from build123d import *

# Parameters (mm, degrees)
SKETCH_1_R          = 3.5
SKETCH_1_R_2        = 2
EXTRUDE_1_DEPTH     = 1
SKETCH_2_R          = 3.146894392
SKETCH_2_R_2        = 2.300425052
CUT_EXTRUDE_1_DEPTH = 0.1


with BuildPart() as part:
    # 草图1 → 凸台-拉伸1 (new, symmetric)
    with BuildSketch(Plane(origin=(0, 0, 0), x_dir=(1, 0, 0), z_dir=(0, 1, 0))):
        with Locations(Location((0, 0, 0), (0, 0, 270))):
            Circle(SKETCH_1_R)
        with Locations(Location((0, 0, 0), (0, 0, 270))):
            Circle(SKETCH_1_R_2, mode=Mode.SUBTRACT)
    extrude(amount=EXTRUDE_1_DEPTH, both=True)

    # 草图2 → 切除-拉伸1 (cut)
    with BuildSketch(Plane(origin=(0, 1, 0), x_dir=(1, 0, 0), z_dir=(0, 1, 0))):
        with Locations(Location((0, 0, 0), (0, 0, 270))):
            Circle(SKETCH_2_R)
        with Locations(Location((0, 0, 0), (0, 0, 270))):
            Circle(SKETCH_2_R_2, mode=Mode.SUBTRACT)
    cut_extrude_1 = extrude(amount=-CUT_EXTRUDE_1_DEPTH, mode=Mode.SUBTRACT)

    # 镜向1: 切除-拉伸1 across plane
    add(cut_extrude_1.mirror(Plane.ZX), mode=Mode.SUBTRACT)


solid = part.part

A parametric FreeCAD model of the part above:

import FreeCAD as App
import Part
import Sketcher
from FreeCAD import Vector
Q = App.Units.Quantity

doc = App.newDocument("Part")
params = doc.addObject("Spreadsheet::Sheet", "Params")
for row, (alias, value) in enumerate([
    ("sketch1_diameter", "7 mm"),
    ("sketch1_diameter2", "4 mm"),
    ("pad1_length", "2 mm"),
    ("pocket1_length", "0.1 mm"),
], start=1):
    params.set(f"A{row}", alias)
    params.set(f"B{row}", "=" + value)
    params.setAlias(f"B{row}", alias)

body = doc.addObject("PartDesign::Body", "Body")

# Sketch on XZ plane
sketch1 = doc.addObject("Sketcher::SketchObject", "Sketch")
body.addObject(sketch1)
sketch1.AttachmentSupport = (doc.XZ_Plane, [""])
sketch1.MapMode = "FlatFace"
sketch1.addGeometry([
    Part.Circle(Vector(0, 0, 0), Vector(0, 0, 1), 3.5),
    Part.Circle(Vector(0, 0, 0), Vector(0, 0, 1), 2),
], False)
sketch1.addConstraint([
    Sketcher.Constraint("Coincident", 0, 3, -1, 1),
    Sketcher.Constraint("Coincident", 1, 3, -1, 1),
    Sketcher.Constraint("Diameter", 0, Q("7 mm")),
    Sketcher.Constraint("Diameter", 1, Q("4 mm")),
])
sketch1.setExpression("Constraints[2]", "Params.sketch1_diameter")
sketch1.setExpression("Constraints[3]", "Params.sketch1_diameter2")
pad1 = doc.addObject("PartDesign::Pad", "Pad")
body.addObject(pad1)
pad1.Profile = sketch1
pad1.setExpression("Length", "Params.pad1_length")
pad1.Midplane = True

# Sketch on XZ plane
sketch2 = doc.addObject("Sketcher::SketchObject", "Sketch001")
body.addObject(sketch2)
sketch2.AttachmentSupport = (doc.XZ_Plane, [""])
sketch2.MapMode = "FlatFace"
sketch2.AttachmentOffset = App.Placement(Vector(0, 0, -1), App.Rotation())
sketch2.addGeometry([
    Part.Circle(Vector(0, 0, 0), Vector(0, 0, 1), 3.1),
    Part.Circle(Vector(0, 0, 0), Vector(0, 0, 1), 2.3),
], False)
sketch2.addConstraint([
    Sketcher.Constraint("Coincident", 0, 3, -1, 1),
    Sketcher.Constraint("Coincident", 1, 3, -1, 1),
    Sketcher.Constraint("Diameter", 0, Q("6.293789 mm")),
    Sketcher.Constraint("Diameter", 1, Q("4.60085 mm")),
])
pocket1 = doc.addObject("PartDesign::Pocket", "Pocket")
body.addObject(pocket1)
pocket1.Profile = sketch2
pocket1.setExpression("Length", "Params.pocket1_length")
pocket1.Reversed = True
doc.recompute()

mirrored = doc.addObject("PartDesign::Mirrored", "Mirrored")
body.addObject(mirrored)
mirrored.Originals = [pocket1]
mirrored.MirrorPlane = (doc.XZ_Plane, [""])
body.Tip = mirrored

doc.recompute()
